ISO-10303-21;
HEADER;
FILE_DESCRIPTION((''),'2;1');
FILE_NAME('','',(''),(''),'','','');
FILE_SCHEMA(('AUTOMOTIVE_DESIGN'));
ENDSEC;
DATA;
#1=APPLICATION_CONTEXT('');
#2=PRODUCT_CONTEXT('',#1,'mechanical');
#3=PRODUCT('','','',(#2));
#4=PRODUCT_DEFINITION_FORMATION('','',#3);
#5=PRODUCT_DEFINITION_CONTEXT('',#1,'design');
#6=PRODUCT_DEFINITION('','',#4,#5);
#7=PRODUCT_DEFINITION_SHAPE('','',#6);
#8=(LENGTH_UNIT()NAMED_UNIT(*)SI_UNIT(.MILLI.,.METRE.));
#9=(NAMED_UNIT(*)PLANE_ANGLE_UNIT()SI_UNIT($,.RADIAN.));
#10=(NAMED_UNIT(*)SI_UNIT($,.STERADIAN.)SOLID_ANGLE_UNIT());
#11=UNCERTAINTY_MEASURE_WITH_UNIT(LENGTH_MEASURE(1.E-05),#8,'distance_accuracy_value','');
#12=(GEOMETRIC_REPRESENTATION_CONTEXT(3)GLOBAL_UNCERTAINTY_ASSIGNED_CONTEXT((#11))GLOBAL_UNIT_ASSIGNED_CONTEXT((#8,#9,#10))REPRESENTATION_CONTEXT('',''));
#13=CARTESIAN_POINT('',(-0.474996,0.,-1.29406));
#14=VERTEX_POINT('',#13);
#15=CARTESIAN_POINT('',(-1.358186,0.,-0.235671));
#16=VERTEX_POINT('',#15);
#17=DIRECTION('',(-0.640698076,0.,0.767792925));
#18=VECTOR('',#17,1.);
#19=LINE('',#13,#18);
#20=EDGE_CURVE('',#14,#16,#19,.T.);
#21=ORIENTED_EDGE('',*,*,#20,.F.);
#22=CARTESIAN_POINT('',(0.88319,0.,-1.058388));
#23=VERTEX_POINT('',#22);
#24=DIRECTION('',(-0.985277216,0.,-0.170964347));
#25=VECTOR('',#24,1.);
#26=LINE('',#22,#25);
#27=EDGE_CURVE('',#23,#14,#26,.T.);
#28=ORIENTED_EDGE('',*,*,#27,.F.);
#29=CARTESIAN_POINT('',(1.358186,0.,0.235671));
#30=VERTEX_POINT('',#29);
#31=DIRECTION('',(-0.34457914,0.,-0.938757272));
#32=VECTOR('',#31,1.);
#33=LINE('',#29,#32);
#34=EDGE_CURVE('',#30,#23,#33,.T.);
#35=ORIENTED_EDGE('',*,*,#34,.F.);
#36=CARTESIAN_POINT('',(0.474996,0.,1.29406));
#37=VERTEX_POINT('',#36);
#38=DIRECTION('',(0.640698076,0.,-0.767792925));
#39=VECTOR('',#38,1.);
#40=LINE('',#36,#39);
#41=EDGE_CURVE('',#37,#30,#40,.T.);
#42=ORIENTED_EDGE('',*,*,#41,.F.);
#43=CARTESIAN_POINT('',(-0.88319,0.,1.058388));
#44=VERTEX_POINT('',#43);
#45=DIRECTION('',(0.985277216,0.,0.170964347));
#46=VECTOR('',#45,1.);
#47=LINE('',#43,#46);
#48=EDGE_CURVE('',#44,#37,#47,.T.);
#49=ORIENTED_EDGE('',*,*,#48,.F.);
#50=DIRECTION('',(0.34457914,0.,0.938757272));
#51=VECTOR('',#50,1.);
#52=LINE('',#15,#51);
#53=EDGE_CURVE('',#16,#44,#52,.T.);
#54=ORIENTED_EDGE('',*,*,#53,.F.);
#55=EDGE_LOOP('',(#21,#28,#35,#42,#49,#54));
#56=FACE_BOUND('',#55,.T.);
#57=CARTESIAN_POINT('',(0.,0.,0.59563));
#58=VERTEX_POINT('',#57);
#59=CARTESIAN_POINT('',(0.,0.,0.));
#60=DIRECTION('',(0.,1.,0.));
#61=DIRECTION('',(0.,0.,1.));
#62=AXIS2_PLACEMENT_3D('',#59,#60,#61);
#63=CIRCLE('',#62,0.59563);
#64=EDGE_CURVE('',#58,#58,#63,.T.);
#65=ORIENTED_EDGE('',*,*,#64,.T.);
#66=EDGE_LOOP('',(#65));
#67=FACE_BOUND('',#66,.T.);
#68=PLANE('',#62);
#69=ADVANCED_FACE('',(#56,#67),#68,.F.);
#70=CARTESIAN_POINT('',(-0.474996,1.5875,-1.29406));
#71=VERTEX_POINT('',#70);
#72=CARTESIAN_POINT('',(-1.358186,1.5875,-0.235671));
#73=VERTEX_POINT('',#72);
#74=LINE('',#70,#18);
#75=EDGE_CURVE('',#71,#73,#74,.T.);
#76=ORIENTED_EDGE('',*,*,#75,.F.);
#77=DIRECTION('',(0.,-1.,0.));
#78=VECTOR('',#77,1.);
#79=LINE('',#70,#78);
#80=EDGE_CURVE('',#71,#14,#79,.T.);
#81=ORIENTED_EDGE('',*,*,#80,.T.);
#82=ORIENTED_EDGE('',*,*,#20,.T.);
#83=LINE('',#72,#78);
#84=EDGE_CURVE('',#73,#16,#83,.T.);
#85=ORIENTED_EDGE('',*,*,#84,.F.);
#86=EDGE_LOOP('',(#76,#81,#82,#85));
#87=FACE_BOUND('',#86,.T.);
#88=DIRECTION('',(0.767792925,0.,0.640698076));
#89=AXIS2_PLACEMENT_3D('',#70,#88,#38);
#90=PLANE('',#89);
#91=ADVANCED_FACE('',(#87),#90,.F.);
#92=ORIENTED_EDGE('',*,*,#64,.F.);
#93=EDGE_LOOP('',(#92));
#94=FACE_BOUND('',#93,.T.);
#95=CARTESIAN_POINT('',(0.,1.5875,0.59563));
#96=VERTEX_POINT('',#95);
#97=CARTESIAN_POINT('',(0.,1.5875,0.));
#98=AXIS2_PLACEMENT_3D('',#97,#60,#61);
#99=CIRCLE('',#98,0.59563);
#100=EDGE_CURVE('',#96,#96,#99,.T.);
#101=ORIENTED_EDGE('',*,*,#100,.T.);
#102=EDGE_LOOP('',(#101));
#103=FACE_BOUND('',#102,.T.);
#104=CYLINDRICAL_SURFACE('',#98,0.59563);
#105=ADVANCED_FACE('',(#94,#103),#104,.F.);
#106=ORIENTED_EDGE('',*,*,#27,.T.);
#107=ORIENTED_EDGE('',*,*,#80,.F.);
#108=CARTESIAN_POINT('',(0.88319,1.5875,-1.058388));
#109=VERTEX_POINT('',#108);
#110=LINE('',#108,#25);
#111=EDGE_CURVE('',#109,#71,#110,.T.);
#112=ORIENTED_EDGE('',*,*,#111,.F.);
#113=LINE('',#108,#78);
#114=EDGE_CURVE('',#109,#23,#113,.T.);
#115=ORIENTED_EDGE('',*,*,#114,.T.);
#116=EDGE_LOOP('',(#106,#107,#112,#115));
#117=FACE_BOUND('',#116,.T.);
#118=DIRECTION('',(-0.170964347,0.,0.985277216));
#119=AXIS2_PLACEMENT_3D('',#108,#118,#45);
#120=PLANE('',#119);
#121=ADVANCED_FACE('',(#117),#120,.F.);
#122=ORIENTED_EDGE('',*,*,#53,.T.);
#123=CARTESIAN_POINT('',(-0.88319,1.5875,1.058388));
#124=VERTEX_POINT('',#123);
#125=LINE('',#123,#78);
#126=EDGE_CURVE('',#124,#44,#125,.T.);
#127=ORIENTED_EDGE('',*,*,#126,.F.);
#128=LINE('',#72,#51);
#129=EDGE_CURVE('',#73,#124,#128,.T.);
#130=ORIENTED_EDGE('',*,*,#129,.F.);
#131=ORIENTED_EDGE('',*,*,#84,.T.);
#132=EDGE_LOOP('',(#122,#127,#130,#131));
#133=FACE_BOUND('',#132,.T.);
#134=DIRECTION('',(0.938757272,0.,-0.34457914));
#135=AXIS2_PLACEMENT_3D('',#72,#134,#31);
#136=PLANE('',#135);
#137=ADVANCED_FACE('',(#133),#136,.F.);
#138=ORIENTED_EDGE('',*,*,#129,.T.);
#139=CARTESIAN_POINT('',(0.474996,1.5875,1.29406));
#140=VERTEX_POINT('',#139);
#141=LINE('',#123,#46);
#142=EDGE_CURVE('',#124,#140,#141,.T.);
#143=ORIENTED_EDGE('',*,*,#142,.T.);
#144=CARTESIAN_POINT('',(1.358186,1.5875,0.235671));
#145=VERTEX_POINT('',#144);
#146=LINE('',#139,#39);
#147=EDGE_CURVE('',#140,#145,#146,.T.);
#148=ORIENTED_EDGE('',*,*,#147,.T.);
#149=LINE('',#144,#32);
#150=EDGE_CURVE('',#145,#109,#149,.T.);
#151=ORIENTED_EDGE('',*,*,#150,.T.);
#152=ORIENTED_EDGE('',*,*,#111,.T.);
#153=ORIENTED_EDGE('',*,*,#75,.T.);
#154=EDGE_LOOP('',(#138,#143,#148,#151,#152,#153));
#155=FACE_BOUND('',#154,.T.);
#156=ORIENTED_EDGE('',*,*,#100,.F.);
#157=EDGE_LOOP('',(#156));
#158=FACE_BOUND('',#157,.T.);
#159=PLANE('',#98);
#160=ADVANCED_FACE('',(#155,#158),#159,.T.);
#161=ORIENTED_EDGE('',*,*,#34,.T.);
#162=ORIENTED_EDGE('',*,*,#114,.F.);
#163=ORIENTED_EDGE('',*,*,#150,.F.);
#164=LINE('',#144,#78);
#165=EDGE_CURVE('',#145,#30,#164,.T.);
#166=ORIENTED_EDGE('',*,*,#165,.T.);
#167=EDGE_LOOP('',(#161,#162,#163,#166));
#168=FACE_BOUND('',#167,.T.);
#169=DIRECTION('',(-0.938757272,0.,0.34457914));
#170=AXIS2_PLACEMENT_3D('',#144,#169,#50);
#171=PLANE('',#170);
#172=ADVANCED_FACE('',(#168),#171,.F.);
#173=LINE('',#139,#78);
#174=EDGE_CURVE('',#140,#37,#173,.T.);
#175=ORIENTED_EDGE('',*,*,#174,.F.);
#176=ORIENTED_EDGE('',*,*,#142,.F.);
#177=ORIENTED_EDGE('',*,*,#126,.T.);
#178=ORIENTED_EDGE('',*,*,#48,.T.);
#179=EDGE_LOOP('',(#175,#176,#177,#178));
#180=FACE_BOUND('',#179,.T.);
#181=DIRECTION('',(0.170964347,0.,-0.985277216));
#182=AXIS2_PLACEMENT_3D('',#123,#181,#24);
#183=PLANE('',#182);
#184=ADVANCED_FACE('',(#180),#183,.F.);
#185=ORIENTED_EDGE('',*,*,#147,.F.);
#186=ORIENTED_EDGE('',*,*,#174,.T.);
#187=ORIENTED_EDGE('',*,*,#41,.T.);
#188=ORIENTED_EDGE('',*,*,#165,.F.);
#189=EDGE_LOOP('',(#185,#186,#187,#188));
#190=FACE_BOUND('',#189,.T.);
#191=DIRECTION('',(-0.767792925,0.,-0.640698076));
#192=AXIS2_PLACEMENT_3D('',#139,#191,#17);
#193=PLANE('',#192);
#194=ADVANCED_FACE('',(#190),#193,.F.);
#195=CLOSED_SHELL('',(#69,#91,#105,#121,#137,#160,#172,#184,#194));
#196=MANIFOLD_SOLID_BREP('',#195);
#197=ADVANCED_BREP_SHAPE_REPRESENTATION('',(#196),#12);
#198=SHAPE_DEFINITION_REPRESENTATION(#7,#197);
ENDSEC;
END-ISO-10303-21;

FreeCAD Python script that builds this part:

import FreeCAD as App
import Part
import Sketcher
Q = App.Units.Quantity


def add_polygon(sketch, points):
    """Adds a closed chain of lines whose ends are joined by coincident constraints."""
    first, n = sketch.GeometryCount, len(points)
    for a, b in zip(points, points[1:] + points[:1]):
        sketch.addGeometry(Part.LineSegment(App.Vector(*a, 0), App.Vector(*b, 0)), False)
    for i in range(n):
        sketch.addConstraint(Sketcher.Constraint("Coincident", first + i, 2, first + (i + 1) % n, 1))

doc = App.newDocument("Part")
body = doc.addObject("PartDesign::Body", "Body")

# Sketch on XZ plane
sketch1 = body.newObject("Sketcher::SketchObject", "Sketch")
sketch1.AttachmentSupport = (doc.getObject("XZ_Plane"), [""])
sketch1.MapMode = "FlatFace"
add_polygon(sketch1, [(-0.5, -1.3), (-1.4, -0.2), (-0.9, 1.1), (0.5, 1.3), (1.4, 0.2), (0.9, -1.1)])  # lines 0-5
sketch1.addConstraint([
    Sketcher.Constraint("Symmetric", 0, 2, 3, 2, -1, 1),
    Sketcher.Constraint("Symmetric", 1, 2, 4, 2, -1, 1),
    Sketcher.Constraint("Symmetric", 2, 2, 5, 2, -1, 1),
    Sketcher.Constraint("Equal", 0, 1),
    Sketcher.Constraint("Equal", 1, 2),
    Sketcher.Constraint("Distance", 0, 1.378482),
    Sketcher.Constraint("DistanceY", 0, 2, -1, 1, 0.235671),
    Sketcher.Constraint("DistanceX", 1, 2, -1, 1, 0.88319),
    Sketcher.Constraint("DistanceY", -1, 1, 1, 2, 1.058388),
])
pad1 = body.newObject("PartDesign::Pad", "Pad")
pad1.Profile = sketch1
pad1.Length = Q("0.0625 in")
pad1.Reversed = True

# Sketch on XZ plane
sketch2 = body.newObject("Sketcher::SketchObject", "Sketch001")
sketch2.AttachmentSupport = (doc.getObject("XZ_Plane"), [""])
sketch2.MapMode = "FlatFace"
sketch2.AttachmentOffset = App.Placement(App.Vector(0, 0, -0.0625 * 25.4), App.Rotation())
sketch2.addGeometry(Part.Circle(App.Vector(0, 0, 0), App.Vector(0, 0, 1), 0.6), False)
sketch2.addConstraint([
    Sketcher.Constraint("Coincident", 0, 3, -1, 1),
    Sketcher.Constraint("Diameter", 0, Q("0.0469 in")),
])
doc.recompute()
hole = body.newObject("PartDesign::Hole", "Hole")
hole.Profile = sketch2
hole.ThreadType = "None"
hole.Diameter = Q("0.0469 in")
hole.DepthType = "ThroughAll"
hole.Reversed = True

doc.recompute()
